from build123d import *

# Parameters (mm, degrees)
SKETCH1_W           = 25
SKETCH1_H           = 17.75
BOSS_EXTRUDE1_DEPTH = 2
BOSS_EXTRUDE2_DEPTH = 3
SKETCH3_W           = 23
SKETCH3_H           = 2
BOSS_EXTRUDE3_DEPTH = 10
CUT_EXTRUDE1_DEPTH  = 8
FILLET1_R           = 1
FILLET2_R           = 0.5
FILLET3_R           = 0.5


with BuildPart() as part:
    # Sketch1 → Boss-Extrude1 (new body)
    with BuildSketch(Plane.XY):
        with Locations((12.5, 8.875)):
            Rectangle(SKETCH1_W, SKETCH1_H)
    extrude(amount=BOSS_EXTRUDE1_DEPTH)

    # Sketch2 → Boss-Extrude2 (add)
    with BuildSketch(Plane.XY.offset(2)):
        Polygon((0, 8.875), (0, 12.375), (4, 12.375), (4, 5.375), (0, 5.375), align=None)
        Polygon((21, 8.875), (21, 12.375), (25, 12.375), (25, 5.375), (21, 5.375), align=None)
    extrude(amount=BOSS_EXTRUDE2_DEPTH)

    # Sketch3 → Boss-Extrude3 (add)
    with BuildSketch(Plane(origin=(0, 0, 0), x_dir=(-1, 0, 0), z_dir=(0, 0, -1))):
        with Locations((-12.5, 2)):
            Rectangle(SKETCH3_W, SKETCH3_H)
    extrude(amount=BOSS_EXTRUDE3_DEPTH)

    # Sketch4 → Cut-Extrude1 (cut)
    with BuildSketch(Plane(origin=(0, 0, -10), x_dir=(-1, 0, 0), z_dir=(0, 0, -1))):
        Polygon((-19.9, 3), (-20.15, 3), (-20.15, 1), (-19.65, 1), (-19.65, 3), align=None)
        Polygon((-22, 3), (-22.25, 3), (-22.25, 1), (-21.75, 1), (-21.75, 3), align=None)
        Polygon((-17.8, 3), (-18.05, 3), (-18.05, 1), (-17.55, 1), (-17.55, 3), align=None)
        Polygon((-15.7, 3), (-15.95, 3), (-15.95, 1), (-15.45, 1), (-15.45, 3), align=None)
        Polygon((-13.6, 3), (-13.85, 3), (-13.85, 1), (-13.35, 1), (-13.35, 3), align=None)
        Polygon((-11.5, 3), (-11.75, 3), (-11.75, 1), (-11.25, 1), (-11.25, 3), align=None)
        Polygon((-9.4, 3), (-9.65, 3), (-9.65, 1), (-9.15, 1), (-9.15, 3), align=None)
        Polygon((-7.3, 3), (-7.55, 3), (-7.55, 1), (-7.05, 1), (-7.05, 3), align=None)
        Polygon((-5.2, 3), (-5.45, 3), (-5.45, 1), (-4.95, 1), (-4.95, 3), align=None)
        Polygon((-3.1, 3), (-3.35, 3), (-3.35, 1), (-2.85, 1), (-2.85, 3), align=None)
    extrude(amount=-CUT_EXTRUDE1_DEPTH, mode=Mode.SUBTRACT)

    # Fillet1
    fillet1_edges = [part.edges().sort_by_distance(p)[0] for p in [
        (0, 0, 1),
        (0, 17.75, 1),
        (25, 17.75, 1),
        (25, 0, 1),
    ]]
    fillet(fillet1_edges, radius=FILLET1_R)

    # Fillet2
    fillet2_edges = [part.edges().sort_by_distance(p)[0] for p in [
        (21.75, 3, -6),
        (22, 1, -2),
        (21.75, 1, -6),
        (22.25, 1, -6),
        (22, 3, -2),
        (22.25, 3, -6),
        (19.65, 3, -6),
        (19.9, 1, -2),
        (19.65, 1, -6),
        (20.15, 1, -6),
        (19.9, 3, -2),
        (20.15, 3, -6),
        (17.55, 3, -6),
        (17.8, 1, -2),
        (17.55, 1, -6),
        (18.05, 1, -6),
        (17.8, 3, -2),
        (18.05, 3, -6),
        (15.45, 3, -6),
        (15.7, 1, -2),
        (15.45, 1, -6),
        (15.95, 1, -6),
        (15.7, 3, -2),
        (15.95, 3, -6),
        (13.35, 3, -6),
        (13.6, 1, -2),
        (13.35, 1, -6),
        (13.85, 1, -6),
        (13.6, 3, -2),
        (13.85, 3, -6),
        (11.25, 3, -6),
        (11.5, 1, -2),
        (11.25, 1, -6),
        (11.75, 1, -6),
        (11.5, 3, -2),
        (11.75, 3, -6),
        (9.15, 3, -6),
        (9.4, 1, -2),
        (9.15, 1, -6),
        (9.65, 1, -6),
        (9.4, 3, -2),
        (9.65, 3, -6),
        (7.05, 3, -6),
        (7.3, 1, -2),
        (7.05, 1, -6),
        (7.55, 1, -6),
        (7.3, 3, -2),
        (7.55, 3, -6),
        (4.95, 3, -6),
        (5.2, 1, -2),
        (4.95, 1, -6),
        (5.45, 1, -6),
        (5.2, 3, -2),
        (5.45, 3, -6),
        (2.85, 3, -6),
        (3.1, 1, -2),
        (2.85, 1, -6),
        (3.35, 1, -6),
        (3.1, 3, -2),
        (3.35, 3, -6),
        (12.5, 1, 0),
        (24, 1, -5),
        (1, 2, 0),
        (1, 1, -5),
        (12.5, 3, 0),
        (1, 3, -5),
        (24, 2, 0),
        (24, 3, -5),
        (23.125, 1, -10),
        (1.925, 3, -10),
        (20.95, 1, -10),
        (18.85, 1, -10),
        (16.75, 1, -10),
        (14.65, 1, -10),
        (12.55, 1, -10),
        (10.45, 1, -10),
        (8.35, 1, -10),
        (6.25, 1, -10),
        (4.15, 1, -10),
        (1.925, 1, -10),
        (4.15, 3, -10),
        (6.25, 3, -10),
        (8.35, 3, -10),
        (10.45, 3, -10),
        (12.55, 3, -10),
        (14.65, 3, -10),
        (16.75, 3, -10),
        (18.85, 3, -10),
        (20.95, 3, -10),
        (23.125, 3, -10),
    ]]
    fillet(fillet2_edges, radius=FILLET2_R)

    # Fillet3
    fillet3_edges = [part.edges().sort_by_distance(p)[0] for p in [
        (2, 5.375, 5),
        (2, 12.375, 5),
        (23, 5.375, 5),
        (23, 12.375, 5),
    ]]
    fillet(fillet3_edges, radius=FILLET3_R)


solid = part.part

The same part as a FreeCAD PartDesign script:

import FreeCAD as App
import Part
import Sketcher

V = App.Vector
Q = App.Units.Quantity


def edges_at(feature, points):
    """Names of the edges that pass closest to the given points."""
    edges = feature.Shape.Edges
    near = lambda p: min(range(len(edges)), key=lambda i: edges[i].distToShape(Part.Vertex(*p))[0])
    return sorted({f"Edge{near(p) + 1}" for p in points})

doc = App.newDocument("Part")
body = doc.addObject("PartDesign::Body", "Body")

sketch1 = body.newObject("Sketcher::SketchObject", "Sketch")
sketch1.AttachmentSupport = (doc.getObject("XY_Plane"), [""])
sketch1.MapMode = "FlatFace"
sketch1.addGeometry([
    Part.LineSegment(V(0, 18, 0), V(0, 0, 0)),
    Part.LineSegment(V(0, 0, 0), V(25, 0, 0)),
    Part.LineSegment(V(25, 0, 0), V(25, 18, 0)),
    Part.LineSegment(V(25, 18, 0), V(0, 18, 0)),
], False)
sketch1.addConstraint([
    Sketcher.Constraint("Coincident", 0, 2, 1, 1),
    Sketcher.Constraint("Coincident", 1, 2, 2, 1),
    Sketcher.Constraint("Coincident", 2, 2, 3, 1),
    Sketcher.Constraint("Coincident", 3, 2, 0, 1),
    Sketcher.Constraint("Vertical", 0),
    Sketcher.Constraint("Horizontal", 1),
    Sketcher.Constraint("Vertical", 2),
    Sketcher.Constraint("Horizontal", 3),
    Sketcher.Constraint("Coincident", 0, 2, -1, 1),
    Sketcher.Constraint("DistanceX", 1, 1, 1, 2, Q("25 mm")),
    Sketcher.Constraint("DistanceY", 0, 2, 0, 1, Q("17.75 mm")),
])
pad1 = body.newObject("PartDesign::Pad", "Pad")
pad1.Profile = sketch1
pad1.Length = 2

sketch2 = body.newObject("Sketcher::SketchObject", "Sketch001")
sketch2.AttachmentSupport = (doc.getObject("XY_Plane"), [""])
sketch2.MapMode = "FlatFace"
sketch2.AttachmentOffset = App.Placement(V(0, 0, 2), App.Rotation())
sketch2.addGeometry([
    Part.LineSegment(V(0, 12.4, 0), V(0, 5.4, 0)),
    Part.LineSegment(V(0, 5.4, 0), V(4, 5.4, 0)),
    Part.LineSegment(V(4, 5.4, 0), V(4, 12.4, 0)),
    Part.LineSegment(V(4, 12.4, 0), V(0, 12.4, 0)),
    Part.LineSegment(V(21, 12.4, 0), V(21, 5.4, 0)),
    Part.LineSegment(V(21, 5.4, 0), V(25, 5.4, 0)),
    Part.LineSegment(V(25, 5.4, 0), V(25, 12.4, 0)),
    Part.LineSegment(V(25, 12.4, 0), V(21, 12.4, 0)),
], False)
sketch2.addConstraint([
    Sketcher.Constraint("Coincident", 0, 2, 1, 1),
    Sketcher.Constraint("Coincident", 1, 2, 2, 1),
    Sketcher.Constraint("Coincident", 2, 2, 3, 1),
    Sketcher.Constraint("Coincident", 3, 2, 0, 1),
    Sketcher.Constraint("Coincident", 4, 2, 5, 1),
    Sketcher.Constraint("Coincident", 5, 2, 6, 1),
    Sketcher.Constraint("Coincident", 6, 2, 7, 1),
    Sketcher.Constraint("Coincident", 7, 2, 4, 1),
    Sketcher.Constraint("Vertical", 0),
    Sketcher.Constraint("Horizontal", 1),
    Sketcher.Constraint("Vertical", 2),
    Sketcher.Constraint("Horizontal", 3),
    Sketcher.Constraint("Vertical", 4),
    Sketcher.Constraint("Horizontal", 5),
    Sketcher.Constraint("Vertical", 6),
    Sketcher.Constraint("Horizontal", 7),
    Sketcher.Constraint("PointOnObject", 0, 2, -2),
    Sketcher.Constraint("Horizontal", 1, 2, 4, 2),
    Sketcher.Constraint("Horizontal", 3, 2, 6, 2),
    Sketcher.Constraint("Equal", 3, 5),
    Sketcher.Constraint("DistanceX", 1, 1, 1, 2, Q("4 mm")),
    Sketcher.Constraint("DistanceY", 0, 2, 0, 1, Q("7 mm")),
    Sketcher.Constraint("DistanceX", -1, 1, 4, 2, Q("21 mm")),
    Sketcher.Constraint("DistanceY", -1, 1, 0, 2, Q("5.375 mm")),
])
pad2 = body.newObject("PartDesign::Pad", "Pad001")
pad2.Profile = sketch2
pad2.Length = 3

sketch3 = body.newObject("Sketcher::SketchObject", "Sketch002")
sketch3.AttachmentSupport = (doc.getObject("XY_Plane"), [""])
sketch3.MapMode = "FlatFace"
sketch3.addGeometry([
    Part.LineSegment(V(24, 3, 0), V(24, 1, 0)),
    Part.LineSegment(V(24, 1, 0), V(1, 1, 0)),
    Part.LineSegment(V(1, 1, 0), V(1, 3, 0)),
    Part.LineSegment(V(1, 3, 0), V(24, 3, 0)),
], False)
sketch3.addConstraint([
    Sketcher.Constraint("Coincident", 0, 2, 1, 1),
    Sketcher.Constraint("Coincident", 1, 2, 2, 1),
    Sketcher.Constraint("Coincident", 2, 2, 3, 1),
    Sketcher.Constraint("Coincident", 3, 2, 0, 1),
    Sketcher.Constraint("Vertical", 0),
    Sketcher.Constraint("Horizontal", 1),
    Sketcher.Constraint("Vertical", 2),
    Sketcher.Constraint("Horizontal", 3),
    Sketcher.Constraint("DistanceX", 1, 2, 1, 1, Q("23 mm")),
    Sketcher.Constraint("DistanceY", 0, 2, 0, 1, Q("2 mm")),
    Sketcher.Constraint("DistanceX", -1, 1, 0, 2, Q("24 mm")),
    Sketcher.Constraint("DistanceY", -1, 1, 0, 2, Q("1 mm")),
])
pad3 = body.newObject("PartDesign::Pad", "Pad002")
pad3.Profile = sketch3
pad3.Length = 10
pad3.Reversed = True

sketch4 = body.newObject("Sketcher::SketchObject", "Sketch003")
sketch4.AttachmentSupport = (doc.getObject("XY_Plane"), [""])
sketch4.MapMode = "FlatFace"
sketch4.AttachmentOffset = App.Placement(V(0, 0, -10), App.Rotation())
sketch4.addGeometry([
    Part.LineSegment(V(20.1, 3, 0), V(20.1, 1, 0)),
    Part.LineSegment(V(20.1, 1, 0), V(19.6, 1, 0)),
    Part.LineSegment(V(19.6, 1, 0), V(19.6, 3, 0)),
    Part.LineSegment(V(19.6, 3, 0), V(20.1, 3, 0)),
    Part.LineSegment(V(22.2, 3, 0), V(22.2, 1, 0)),
    Part.LineSegment(V(22.2, 1, 0), V(21.8, 1, 0)),
    Part.LineSegment(V(21.8, 1, 0), V(21.8, 3, 0)),
    Part.LineSegment(V(21.8, 3, 0), V(22.2, 3, 0)),
    Part.LineSegment(V(18.1, 3, 0), V(18.1, 1, 0)),
    Part.LineSegment(V(18.1, 1, 0), V(17.6, 1, 0)),
    Part.LineSegment(V(17.6, 1, 0), V(17.6, 3, 0)),
    Part.LineSegment(V(17.6, 3, 0), V(18.1, 3, 0)),
    Part.LineSegment(V(15.9, 3, 0), V(15.9, 1, 0)),
    Part.LineSegment(V(15.9, 1, 0), V(15.4, 1, 0)),
    Part.LineSegment(V(15.4, 1, 0), V(15.4, 3, 0)),
    Part.LineSegment(V(15.4, 3, 0), V(15.9, 3, 0)),
    Part.LineSegment(V(13.8, 3, 0), V(13.8, 1, 0)),
    Part.LineSegment(V(13.8, 1, 0), V(13.3, 1, 0)),
    Part.LineSegment(V(13.3, 1, 0), V(13.3, 3, 0)),
    Part.LineSegment(V(13.3, 3, 0), V(13.8, 3, 0)),
    Part.LineSegment(V(11.8, 3, 0), V(11.8, 1, 0)),
    Part.LineSegment(V(11.8, 1, 0), V(11.2, 1, 0)),
    Part.LineSegment(V(11.2, 1, 0), V(11.2, 3, 0)),
    Part.LineSegment(V(11.2, 3, 0), V(11.8, 3, 0)),
    Part.LineSegment(V(9.7, 3, 0), V(9.7, 1, 0)),
    Part.LineSegment(V(9.7, 1, 0), V(9.2, 1, 0)),
    Part.LineSegment(V(9.2, 1, 0), V(9.2, 3, 0)),
    Part.LineSegment(V(9.2, 3, 0), V(9.7, 3, 0)),
    Part.LineSegment(V(7.5, 3, 0), V(7.5, 1, 0)),
    Part.LineSegment(V(7.5, 1, 0), V(7, 1, 0)),
    Part.LineSegment(V(7, 1, 0), V(7, 3, 0)),
    Part.LineSegment(V(7, 3, 0), V(7.5, 3, 0)),
    Part.LineSegment(V(5.5, 3, 0), V(5.5, 1, 0)),
    Part.LineSegment(V(5.5, 1, 0), V(5, 1, 0)),
    Part.LineSegment(V(5, 1, 0), V(5, 3, 0)),
    Part.LineSegment(V(5, 3, 0), V(5.5, 3, 0)),
    Part.LineSegment(V(3.4, 3, 0), V(3.4, 1, 0)),
    Part.LineSegment(V(3.4, 1, 0), V(2.9, 1, 0)),
    Part.LineSegment(V(2.9, 1, 0), V(2.9, 3, 0)),
    Part.LineSegment(V(2.9, 3, 0), V(3.4, 3, 0)),
], False)
sketch4.addConstraint([
    Sketcher.Constraint("Coincident", 0, 2, 1, 1),
    Sketcher.Constraint("Coincident", 1, 2, 2, 1),
    Sketcher.Constraint("Coincident", 2, 2, 3, 1),
    Sketcher.Constraint("Coincident", 3, 2, 0, 1),
    Sketcher.Constraint("Coincident", 4, 2, 5, 1),
    Sketcher.Constraint("Coincident", 5, 2, 6, 1),
    Sketcher.Constraint("Coincident", 6, 2, 7, 1),
    Sketcher.Constraint("Coincident", 7, 2, 4, 1),
    Sketcher.Constraint("Coincident", 8, 2, 9, 1),
    Sketcher.Constraint("Coincident", 9, 2, 10, 1),
    Sketcher.Constraint("Coincident", 10, 2, 11, 1),
    Sketcher.Constraint("Coincident", 11, 2, 8, 1),
    Sketcher.Constraint("Coincident", 12, 2, 13, 1),
    Sketcher.Constraint("Coincident", 13, 2, 14, 1),
    Sketcher.Constraint("Coincident", 14, 2, 15, 1),
    Sketcher.Constraint("Coincident", 15, 2, 12, 1),
    Sketcher.Constraint("Coincident", 16, 2, 17, 1),
    Sketcher.Constraint("Coincident", 17, 2, 18, 1),
    Sketcher.Constraint("Coincident", 18, 2, 19, 1),
    Sketcher.Constraint("Coincident", 19, 2, 16, 1),
    Sketcher.Constraint("Coincident", 20, 2, 21, 1),
    Sketcher.Constraint("Coincident", 21, 2, 22, 1),
    Sketcher.Constraint("Coincident", 22, 2, 23, 1),
    Sketcher.Constraint("Coincident", 23, 2, 20, 1),
    Sketcher.Constraint("Coincident", 24, 2, 25, 1),
    Sketcher.Constraint("Coincident", 25, 2, 26, 1),
    Sketcher.Constraint("Coincident", 26, 2, 27, 1),
    Sketcher.Constraint("Coincident", 27, 2, 24, 1),
    Sketcher.Constraint("Coincident", 28, 2, 29, 1),
    Sketcher.Constraint("Coincident", 29, 2, 30, 1),
    Sketcher.Constraint("Coincident", 30, 2, 31, 1),
    Sketcher.Constraint("Coincident", 31, 2, 28, 1),
    Sketcher.Constraint("Coincident", 32, 2, 33, 1),
    Sketcher.Constraint("Coincident", 33, 2, 34, 1),
    Sketcher.Constraint("Coincident", 34, 2, 35, 1),
    Sketcher.Constraint("Coincident", 35, 2, 32, 1),
    Sketcher.Constraint("Coincident", 36, 2, 37, 1),
    Sketcher.Constraint("Coincident", 37, 2, 38, 1),
    Sketcher.Constraint("Coincident", 38, 2, 39, 1),
    Sketcher.Constraint("Coincident", 39, 2, 36, 1),
    Sketcher.Constraint("Vertical", 0),
    Sketcher.Constraint("Horizontal", 1),
    Sketcher.Constraint("Vertical", 2),
    Sketcher.Constraint("Horizontal", 3),
    Sketcher.Constraint("Vertical", 4),
    Sketcher.Constraint("Horizontal", 5),
    Sketcher.Constraint("Vertical", 6),
    Sketcher.Constraint("Horizontal", 7),
    Sketcher.Constraint("Vertical", 8),
    Sketcher.Constraint("Horizontal", 9),
    Sketcher.Constraint("Vertical", 10),
    Sketcher.Constraint("Horizontal", 11),
    Sketcher.Constraint("Vertical", 12),
    Sketcher.Constraint("Horizontal", 13),
    Sketcher.Constraint("Vertical", 14),
    Sketcher.Constraint("Horizontal", 15),
    Sketcher.Constraint("Vertical", 16),
    Sketcher.Constraint("Horizontal", 17),
    Sketcher.Constraint("Vertical", 18),
    Sketcher.Constraint("Horizontal", 19),
    Sketcher.Constraint("Vertical", 20),
    Sketcher.Constraint("Horizontal", 21),
    Sketcher.Constraint("Vertical", 22),
    Sketcher.Constraint("Horizontal", 23),
    Sketcher.Constraint("Vertical", 24),
    Sketcher.Constraint("Horizontal", 25),
    Sketcher.Constraint("Vertical", 26),
    Sketcher.Constraint("Horizontal", 27),
    Sketcher.Constraint("Vertical", 28),
    Sketcher.Constraint("Horizontal", 29),
    Sketcher.Constraint("Vertical", 30),
    Sketcher.Constraint("Horizontal", 31),
    Sketcher.Constraint("Vertical", 32),
    Sketcher.Constraint("Horizontal", 33),
    Sketcher.Constraint("Vertical", 34),
    Sketcher.Constraint("Horizontal", 35),
    Sketcher.Constraint("Vertical", 36),
    Sketcher.Constraint("Horizontal", 37),
    Sketcher.Constraint("Vertical", 38),
    Sketcher.Constraint("Horizontal", 39),
    Sketcher.Constraint("Horizontal", 1, 2, 4, 2),
    Sketcher.Constraint("Horizontal", 3, 2, 6, 2),
    Sketcher.Constraint("Horizontal", 5, 2, 8, 2),
    Sketcher.Constraint("Horizontal", 7, 2, 10, 2),
    Sketcher.Constraint("Horizontal", 9, 2, 12, 2),
    Sketcher.Constraint("Horizontal", 11, 2, 14, 2),
    Sketcher.Constraint("Horizontal", 13, 2, 16, 2),
    Sketcher.Constraint("Horizontal", 15, 2, 18, 2),
    Sketcher.Constraint("Horizontal", 17, 2, 20, 2),
    Sketcher.Constraint("Horizontal", 19, 2, 22, 2),
    Sketcher.Constraint("Horizontal", 21, 2, 24, 2),
    Sketcher.Constraint("Horizontal", 23, 2, 26, 2),
    Sketcher.Constraint("Horizontal", 25, 2, 28, 2),
    Sketcher.Constraint("Horizontal", 27, 2, 30, 2),
    Sketcher.Constraint("Horizontal", 29, 2, 32, 2),
    Sketcher.Constraint("Horizontal", 31, 2, 34, 2),
    Sketcher.Constraint("Horizontal", 33, 2, 36, 2),
    Sketcher.Constraint("Horizontal", 35, 2, 38, 2),
    Sketcher.Constraint("Equal", 3, 5),
    Sketcher.Constraint("Equal", 7, 9),
    Sketcher.Constraint("Equal", 11, 13),
    Sketcher.Constraint("Equal", 15, 17),
    Sketcher.Constraint("Equal", 19, 21),
    Sketcher.Constraint("Equal", 23, 25),
    Sketcher.Constraint("Equal", 27, 29),
    Sketcher.Constraint("Equal", 31, 33),
    Sketcher.Constraint("Equal", 35, 37),
    Sketcher.Constraint("DistanceY", 0, 2, 0, 1, Q("2 mm")),
    Sketcher.Constraint("DistanceX", 1, 2, 1, 1, Q("0.5 mm")),
    Sketcher.Constraint("DistanceY", -1, 1, 0, 2, Q("1 mm")),
    Sketcher.Constraint("DistanceX", 0, 2, 4, 2, Q("2.1 mm")),
    Sketcher.Constraint("DistanceX", 8, 2, 1, 2, Q("1.6 mm")),
    Sketcher.Constraint("DistanceX", 12, 2, 9, 2, Q("1.6 mm")),
    Sketcher.Constraint("DistanceX", 16, 2, 13, 2, Q("1.6 mm")),
    Sketcher.Constraint("DistanceX", 20, 2, 17, 2, Q("1.6 mm")),
    Sketcher.Constraint("DistanceX", 24, 2, 21, 2, Q("1.6 mm")),
    Sketcher.Constraint("DistanceX", 28, 2, 25, 2, Q("1.6 mm")),
    Sketcher.Constraint("DistanceX", 32, 2, 29, 2, Q("1.6 mm")),
    Sketcher.Constraint("DistanceX", 36, 2, 33, 2, Q("1.6 mm")),
    Sketcher.Constraint("DistanceX", -1, 1, 0, 2, Q("20.15 mm")),
])
pocket1 = body.newObject("PartDesign::Pocket", "Pocket")
pocket1.Profile = sketch4
pocket1.Length = 8
pocket1.Reversed = True
doc.recompute()

fillet = body.newObject("PartDesign::Fillet", "Fillet")
fillet.Base = (pocket1, edges_at(pocket1, [
    (0, 0, 1),
    (0, 17.75, 1),
    (25, 17.75, 1),
    (25, 0, 1),
]))
fillet.Radius = 1
doc.recompute()

fillet2 = body.newObject("PartDesign::Fillet", "Fillet001")
fillet2.Base = (fillet, edges_at(fillet, [
    (21.75, 3, -6),
    (22, 1, -2),
    (21.75, 1, -6),
    (22.25, 1, -6),
    (22, 3, -2),
    (22.25, 3, -6),
    (19.65, 3, -6),
    (19.9, 1, -2),
    (19.65, 1, -6),
    (20.15, 1, -6),
    (19.9, 3, -2),
    (20.15, 3, -6),
    (17.55, 3, -6),
    (17.8, 1, -2),
    (17.55, 1, -6),
    (18.05, 1, -6),
    (17.8, 3, -2),
    (18.05, 3, -6),
    (15.45, 3, -6),
    (15.7, 1, -2),
    (15.45, 1, -6),
    (15.95, 1, -6),
    (15.7, 3, -2),
    (15.95, 3, -6),
    (13.35, 3, -6),
    (13.6, 1, -2),
    (13.35, 1, -6),
    (13.85, 1, -6),
    (13.6, 3, -2),
    (13.85, 3, -6),
    (11.25, 3, -6),
    (11.5, 1, -2),
    (11.25, 1, -6),
    (11.75, 1, -6),
    (11.5, 3, -2),
    (11.75, 3, -6),
    (9.15, 3, -6),
    (9.4, 1, -2),
    (9.15, 1, -6),
    (9.65, 1, -6),
    (9.4, 3, -2),
    (9.65, 3, -6),
    (7.05, 3, -6),
    (7.3, 1, -2),
    (7.05, 1, -6),
    (7.55, 1, -6),
    (7.3, 3, -2),
    (7.55, 3, -6),
    (4.95, 3, -6),
    (5.2, 1, -2),
    (4.95, 1, -6),
    (5.45, 1, -6),
    (5.2, 3, -2),
    (5.45, 3, -6),
    (2.85, 3, -6),
    (3.1, 1, -2),
    (2.85, 1, -6),
    (3.35, 1, -6),
    (3.1, 3, -2),
    (3.35, 3, -6),
    (12.5, 1, 0),
    (24, 1, -5),
    (1, 2, 0),
    (1, 1, -5),
    (12.5, 3, 0),
    (1, 3, -5),
    (24, 2, 0),
    (24, 3, -5),
    (23.125, 1, -10),
    (1.925, 3, -10),
    (20.95, 1, -10),
    (18.85, 1, -10),
    (16.75, 1, -10),
    (14.65, 1, -10),
    (12.55, 1, -10),
    (10.45, 1, -10),
    (8.35, 1, -10),
    (6.25, 1, -10),
    (4.15, 1, -10),
    (1.925, 1, -10),
    (4.15, 3, -10),
    (6.25, 3, -10),
    (8.35, 3, -10),
    (10.45, 3, -10),
    (12.55, 3, -10),
    (14.65, 3, -10),
    (16.75, 3, -10),
    (18.85, 3, -10),
    (20.95, 3, -10),
    (23.125, 3, -10),
]))
fillet2.Radius = 0.5
doc.recompute()

fillet3 = body.newObject("PartDesign::Fillet", "Fillet002")
fillet3.Base = (fillet2, edges_at(fillet2, [
    (2, 5.375, 5),
    (2, 12.375, 5),
    (23, 5.375, 5),
    (23, 12.375, 5),
]))
fillet3.Radius = 0.5

doc.recompute()
